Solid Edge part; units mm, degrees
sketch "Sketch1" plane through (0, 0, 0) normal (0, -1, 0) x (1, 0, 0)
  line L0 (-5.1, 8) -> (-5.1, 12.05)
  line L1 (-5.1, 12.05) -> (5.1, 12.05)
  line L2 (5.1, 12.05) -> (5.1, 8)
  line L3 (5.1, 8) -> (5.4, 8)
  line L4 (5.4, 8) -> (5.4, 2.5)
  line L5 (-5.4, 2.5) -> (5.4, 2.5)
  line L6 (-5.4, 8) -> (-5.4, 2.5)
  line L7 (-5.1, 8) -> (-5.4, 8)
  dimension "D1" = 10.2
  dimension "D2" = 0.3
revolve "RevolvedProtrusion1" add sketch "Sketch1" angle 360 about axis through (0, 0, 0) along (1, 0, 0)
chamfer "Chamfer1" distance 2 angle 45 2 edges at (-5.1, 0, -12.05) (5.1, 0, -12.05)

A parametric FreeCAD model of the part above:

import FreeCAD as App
import Part
import Sketcher

V = App.Vector


def edges_at(feature, points):
    """Names of the edges that pass closest to the given points."""
    edges = feature.Shape.Edges
    near = lambda p: min(range(len(edges)), key=lambda i: edges[i].distToShape(Part.Vertex(*p))[0])
    return sorted({f"Edge{near(p) + 1}" for p in points})


def add_polygon(sketch, points):
    """Adds a closed chain of lines whose ends are joined by coincident constraints."""
    first, n = sketch.GeometryCount, len(points)
    for a, b in zip(points, points[1:] + points[:1]):
        sketch.addGeometry(Part.LineSegment(App.Vector(*a, 0), App.Vector(*b, 0)), False)
    for i in range(n):
        sketch.addConstraint(Sketcher.Constraint("Coincident", first + i, 2, first + (i + 1) % n, 1))

doc = App.newDocument("Part")
params = doc.addObject("Spreadsheet::Sheet", "Params")
for row, (alias, value) in enumerate([
    ("sketch1_width", "0.3 mm"),
    ("sketch1_height", "5.5 mm"),
    ("sketch1_height2", "4.05 mm"),
    ("revolution_angle", "360 deg"),
    ("chamfer_size", "2 mm"),
], start=1):
    params.set(f"A{row}", alias)
    params.set(f"B{row}", "=" + value)
    params.setAlias(f"B{row}", alias)

body = doc.addObject("PartDesign::Body", "Body")

# Sketch on XZ plane
sketch1 = body.newObject("Sketcher::SketchObject", "Sketch")
sketch1.AttachmentSupport = (doc.getObject("XZ_Plane"), [""])
sketch1.MapMode = "FlatFace"
add_polygon(sketch1, [(-5.1, 12.05), (-5.1, 8), (-5.4, 8), (-5.4, 2.5), (5.4, 2.5), (5.4, 8), (5.1, 8), (5.1, 12.05)])  # lines 0-7
sketch1.addConstraint(Sketcher.Constraint("Vertical", 0))
sketch1.addConstraint(Sketcher.Constraint("Horizontal", 1))
sketch1.addConstraint(Sketcher.Constraint("Vertical", 2))
sketch1.addConstraint(Sketcher.Constraint("Horizontal", 3))
sketch1.addConstraint(Sketcher.Constraint("Vertical", 4))
sketch1.addConstraint(Sketcher.Constraint("Horizontal", 5))
sketch1.addConstraint(Sketcher.Constraint("Vertical", 6))
sketch1.addConstraint(Sketcher.Constraint("Horizontal", 7))
sketch1.addConstraint(Sketcher.Constraint("Symmetric", 1, 2, 4, 2, -2))
sketch1.addConstraint(Sketcher.Constraint("Equal", 1, 5))
sketch1.addConstraint(Sketcher.Constraint("DistanceX", 0, 2, -1, 1, 5.1))
sketch1.addConstraint(Sketcher.Constraint("DistanceX", 1, 2, 1, 1, 0.3))
sketch1.addConstraint(Sketcher.Constraint("DistanceY", 2, 2, 2, 1, 5.5))
sketch1.addConstraint(Sketcher.Constraint("DistanceY", -1, 1, 0, 2, 8.0))
sketch1.addConstraint(Sketcher.Constraint("DistanceY", 0, 2, 0, 1, 4.05))
sketch1.setExpression("Constraints[19]", "Params.sketch1_width")
sketch1.setExpression("Constraints[20]", "Params.sketch1_height")
sketch1.setExpression("Constraints[22]", "Params.sketch1_height2")
revolution = body.newObject("PartDesign::Revolution", "Revolution")
revolution.Profile = sketch1
revolution.ReferenceAxis = (sketch1, ["H_Axis"])
revolution.setExpression("Angle", "Params.revolution_angle")
doc.recompute()

chamfer = body.newObject("PartDesign::Chamfer", "Chamfer")
chamfer.Base = (revolution, edges_at(revolution, [(-5.1, 0, -12.05), (5.1, 0, -12.05)]))
chamfer.setExpression("Size", "Params.chamfer_size")

doc.recompute()
